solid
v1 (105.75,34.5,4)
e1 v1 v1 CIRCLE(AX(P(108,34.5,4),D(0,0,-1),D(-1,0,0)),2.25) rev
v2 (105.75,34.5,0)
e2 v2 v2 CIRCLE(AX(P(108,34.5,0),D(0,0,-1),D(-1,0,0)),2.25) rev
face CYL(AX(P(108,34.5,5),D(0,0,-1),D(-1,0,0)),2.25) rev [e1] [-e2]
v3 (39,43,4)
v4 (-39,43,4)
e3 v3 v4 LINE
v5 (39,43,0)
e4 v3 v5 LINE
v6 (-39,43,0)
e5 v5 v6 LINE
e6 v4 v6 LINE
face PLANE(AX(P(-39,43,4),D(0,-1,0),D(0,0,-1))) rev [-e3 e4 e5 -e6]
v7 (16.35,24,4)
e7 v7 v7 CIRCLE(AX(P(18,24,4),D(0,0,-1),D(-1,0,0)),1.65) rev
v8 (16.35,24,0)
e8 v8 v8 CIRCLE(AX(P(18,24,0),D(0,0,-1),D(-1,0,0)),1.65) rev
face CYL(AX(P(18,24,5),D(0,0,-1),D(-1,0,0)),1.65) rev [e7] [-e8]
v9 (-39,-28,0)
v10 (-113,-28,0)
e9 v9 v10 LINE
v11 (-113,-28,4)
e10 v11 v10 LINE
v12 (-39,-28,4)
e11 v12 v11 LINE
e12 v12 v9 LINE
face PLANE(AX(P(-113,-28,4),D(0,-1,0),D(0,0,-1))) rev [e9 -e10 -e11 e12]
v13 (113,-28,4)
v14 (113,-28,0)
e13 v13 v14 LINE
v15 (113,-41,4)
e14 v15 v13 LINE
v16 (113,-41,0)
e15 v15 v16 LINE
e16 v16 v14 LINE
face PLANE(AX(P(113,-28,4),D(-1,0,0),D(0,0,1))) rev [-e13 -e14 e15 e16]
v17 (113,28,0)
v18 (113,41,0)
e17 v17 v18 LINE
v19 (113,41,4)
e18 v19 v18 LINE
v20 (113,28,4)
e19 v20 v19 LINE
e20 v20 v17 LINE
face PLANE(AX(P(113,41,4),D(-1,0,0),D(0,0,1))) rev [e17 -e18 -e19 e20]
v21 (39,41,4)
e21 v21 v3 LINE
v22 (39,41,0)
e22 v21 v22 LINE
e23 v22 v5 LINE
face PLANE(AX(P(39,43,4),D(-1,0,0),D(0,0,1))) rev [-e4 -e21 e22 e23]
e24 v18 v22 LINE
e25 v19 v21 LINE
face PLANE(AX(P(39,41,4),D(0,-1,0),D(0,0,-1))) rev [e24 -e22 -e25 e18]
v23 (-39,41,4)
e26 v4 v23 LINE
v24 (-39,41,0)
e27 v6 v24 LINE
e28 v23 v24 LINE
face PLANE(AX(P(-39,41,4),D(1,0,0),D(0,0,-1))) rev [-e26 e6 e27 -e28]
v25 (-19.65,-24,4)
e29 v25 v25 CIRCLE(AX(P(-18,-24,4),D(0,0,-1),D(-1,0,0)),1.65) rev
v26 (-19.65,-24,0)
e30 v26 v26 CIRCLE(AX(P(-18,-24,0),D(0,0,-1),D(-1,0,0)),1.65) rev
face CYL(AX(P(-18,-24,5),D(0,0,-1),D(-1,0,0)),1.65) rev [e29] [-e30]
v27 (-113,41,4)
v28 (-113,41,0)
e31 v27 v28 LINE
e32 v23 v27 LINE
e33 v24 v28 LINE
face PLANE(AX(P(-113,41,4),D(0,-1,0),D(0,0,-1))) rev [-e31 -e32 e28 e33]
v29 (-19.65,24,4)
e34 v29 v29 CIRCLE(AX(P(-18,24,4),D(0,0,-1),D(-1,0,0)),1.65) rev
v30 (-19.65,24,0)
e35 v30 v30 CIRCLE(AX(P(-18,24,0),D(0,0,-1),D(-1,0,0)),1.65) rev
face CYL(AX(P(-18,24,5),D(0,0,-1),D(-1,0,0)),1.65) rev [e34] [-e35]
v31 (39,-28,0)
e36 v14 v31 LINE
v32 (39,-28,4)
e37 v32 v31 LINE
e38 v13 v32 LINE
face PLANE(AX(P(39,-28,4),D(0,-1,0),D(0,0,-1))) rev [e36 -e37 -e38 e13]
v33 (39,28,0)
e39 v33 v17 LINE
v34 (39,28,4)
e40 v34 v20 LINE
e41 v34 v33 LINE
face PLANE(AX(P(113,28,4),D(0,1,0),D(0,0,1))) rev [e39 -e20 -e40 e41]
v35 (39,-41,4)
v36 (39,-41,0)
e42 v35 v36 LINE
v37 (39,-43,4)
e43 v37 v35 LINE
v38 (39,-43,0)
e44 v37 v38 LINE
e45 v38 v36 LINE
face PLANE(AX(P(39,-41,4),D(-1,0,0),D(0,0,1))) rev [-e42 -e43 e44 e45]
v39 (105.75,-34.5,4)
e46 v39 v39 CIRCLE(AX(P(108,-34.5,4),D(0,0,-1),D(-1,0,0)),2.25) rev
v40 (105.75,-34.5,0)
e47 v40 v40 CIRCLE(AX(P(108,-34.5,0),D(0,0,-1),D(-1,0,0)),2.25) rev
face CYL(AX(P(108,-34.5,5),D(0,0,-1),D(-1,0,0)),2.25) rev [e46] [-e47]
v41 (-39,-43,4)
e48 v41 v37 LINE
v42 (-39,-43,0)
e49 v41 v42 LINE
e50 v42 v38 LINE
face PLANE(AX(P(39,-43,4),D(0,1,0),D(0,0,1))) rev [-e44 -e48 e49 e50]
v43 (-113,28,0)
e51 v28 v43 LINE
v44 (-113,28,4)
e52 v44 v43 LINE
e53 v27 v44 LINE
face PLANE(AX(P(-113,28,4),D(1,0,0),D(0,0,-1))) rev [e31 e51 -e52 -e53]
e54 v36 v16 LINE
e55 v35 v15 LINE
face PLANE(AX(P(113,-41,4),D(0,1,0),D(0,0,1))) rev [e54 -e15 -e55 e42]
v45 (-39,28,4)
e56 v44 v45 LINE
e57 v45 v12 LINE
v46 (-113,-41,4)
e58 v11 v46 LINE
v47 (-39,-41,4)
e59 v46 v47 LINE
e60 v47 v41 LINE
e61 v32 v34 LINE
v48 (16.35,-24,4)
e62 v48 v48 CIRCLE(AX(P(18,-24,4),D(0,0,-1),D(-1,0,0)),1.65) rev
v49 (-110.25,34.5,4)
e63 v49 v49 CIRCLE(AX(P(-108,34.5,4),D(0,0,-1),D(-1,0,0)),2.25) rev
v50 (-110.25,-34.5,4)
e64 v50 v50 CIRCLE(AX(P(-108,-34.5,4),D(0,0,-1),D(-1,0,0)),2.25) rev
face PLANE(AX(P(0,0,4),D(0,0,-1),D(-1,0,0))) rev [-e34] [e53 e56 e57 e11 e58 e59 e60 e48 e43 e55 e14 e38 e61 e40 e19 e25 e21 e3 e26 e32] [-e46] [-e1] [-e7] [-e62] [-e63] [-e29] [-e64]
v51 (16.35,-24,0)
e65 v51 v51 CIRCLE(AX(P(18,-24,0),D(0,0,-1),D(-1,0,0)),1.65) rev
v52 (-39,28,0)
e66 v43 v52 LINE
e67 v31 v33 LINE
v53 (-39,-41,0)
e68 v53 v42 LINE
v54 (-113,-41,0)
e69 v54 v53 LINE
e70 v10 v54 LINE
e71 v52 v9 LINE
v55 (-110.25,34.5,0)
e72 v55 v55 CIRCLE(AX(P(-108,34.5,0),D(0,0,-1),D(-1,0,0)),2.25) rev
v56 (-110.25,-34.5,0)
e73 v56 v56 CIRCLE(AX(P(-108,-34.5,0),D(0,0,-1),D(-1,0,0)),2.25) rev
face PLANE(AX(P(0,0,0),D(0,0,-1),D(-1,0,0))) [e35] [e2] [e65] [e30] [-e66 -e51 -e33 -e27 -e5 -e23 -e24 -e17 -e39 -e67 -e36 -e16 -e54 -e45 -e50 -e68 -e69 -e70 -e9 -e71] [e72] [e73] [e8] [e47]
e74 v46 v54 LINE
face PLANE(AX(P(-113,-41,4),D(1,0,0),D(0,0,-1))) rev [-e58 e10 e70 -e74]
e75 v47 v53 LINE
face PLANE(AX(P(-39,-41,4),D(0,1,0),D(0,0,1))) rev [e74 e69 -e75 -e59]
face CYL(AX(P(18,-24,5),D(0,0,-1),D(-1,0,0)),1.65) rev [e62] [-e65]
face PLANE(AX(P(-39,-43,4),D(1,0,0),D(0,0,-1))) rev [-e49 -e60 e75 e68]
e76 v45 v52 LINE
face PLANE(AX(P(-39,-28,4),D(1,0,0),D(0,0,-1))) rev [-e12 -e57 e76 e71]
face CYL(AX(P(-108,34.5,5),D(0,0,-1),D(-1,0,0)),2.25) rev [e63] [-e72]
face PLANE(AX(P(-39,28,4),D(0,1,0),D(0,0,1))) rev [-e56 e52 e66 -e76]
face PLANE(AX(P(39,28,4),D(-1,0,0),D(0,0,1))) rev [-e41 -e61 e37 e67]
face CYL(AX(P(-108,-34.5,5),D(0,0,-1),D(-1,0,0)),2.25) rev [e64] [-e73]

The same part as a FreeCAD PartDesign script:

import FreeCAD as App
import Part
import Sketcher

V = App.Vector
Q = App.Units.Quantity

doc = App.newDocument("Part")
body = doc.addObject("PartDesign::Body", "Body")

# Sketch on XY plane
sketch1 = doc.addObject("Sketcher::SketchObject", "Sketch")
body.addObject(sketch1)
sketch1.AttachmentSupport = (doc.XY_Plane, [""])
sketch1.MapMode = "FlatFace"
sketch1.addGeometry([
    Part.LineSegment(V(113, -41, 0), V(113, -28, 0)),  # 0
    Part.LineSegment(V(113, -28, 0), V(39, -28, 0)),  # 1
    Part.LineSegment(V(39, -28, 0), V(39, 28, 0)),  # 2
    Part.LineSegment(V(39, 28, 0), V(113, 28, 0)),  # 3
    Part.LineSegment(V(113, 28, 0), V(113, 41, 0)),  # 4
    Part.LineSegment(V(113, 41, 0), V(39, 41, 0)),  # 5
    Part.LineSegment(V(39, 41, 0), V(39, 43, 0)),  # 6
    Part.LineSegment(V(39, 43, 0), V(-39, 43, 0)),  # 7
    Part.LineSegment(V(-39, 43, 0), V(-39, 41, 0)),  # 8
    Part.LineSegment(V(-39, 41, 0), V(-113, 41, 0)),  # 9
    Part.LineSegment(V(-113, 41, 0), V(-113, 28, 0)),  # 10
    Part.LineSegment(V(-113, 28, 0), V(-39, 28, 0)),  # 11
    Part.LineSegment(V(-39, 28, 0), V(-39, -28, 0)),  # 12
    Part.LineSegment(V(-39, -28, 0), V(-113, -28, 0)),  # 13
    Part.LineSegment(V(-113, -28, 0), V(-113, -41, 0)),  # 14
    Part.LineSegment(V(-113, -41, 0), V(-39, -41, 0)),  # 15
    Part.LineSegment(V(-39, -41, 0), V(-39, -43, 0)),  # 16
    Part.LineSegment(V(-39, -43, 0), V(39, -43, 0)),  # 17
    Part.LineSegment(V(39, -43, 0), V(39, -41, 0)),  # 18
    Part.LineSegment(V(39, -41, 0), V(113, -41, 0)),  # 19
], False)
sketch1.addConstraint([
    Sketcher.Constraint("Coincident", 0, 2, 1, 1),
    Sketcher.Constraint("Coincident", 1, 2, 2, 1),
    Sketcher.Constraint("Coincident", 2, 2, 3, 1),
    Sketcher.Constraint("Coincident", 3, 2, 4, 1),
    Sketcher.Constraint("Coincident", 4, 2, 5, 1),
    Sketcher.Constraint("Coincident", 5, 2, 6, 1),
    Sketcher.Constraint("Coincident", 6, 2, 7, 1),
    Sketcher.Constraint("Coincident", 7, 2, 8, 1),
    Sketcher.Constraint("Coincident", 8, 2, 9, 1),
    Sketcher.Constraint("Coincident", 9, 2, 10, 1),
    Sketcher.Constraint("Coincident", 10, 2, 11, 1),
    Sketcher.Constraint("Coincident", 11, 2, 12, 1),
    Sketcher.Constraint("Coincident", 12, 2, 13, 1),
    Sketcher.Constraint("Coincident", 13, 2, 14, 1),
    Sketcher.Constraint("Coincident", 14, 2, 15, 1),
    Sketcher.Constraint("Coincident", 15, 2, 16, 1),
    Sketcher.Constraint("Coincident", 16, 2, 17, 1),
    Sketcher.Constraint("Coincident", 17, 2, 18, 1),
    Sketcher.Constraint("Coincident", 18, 2, 19, 1),
    Sketcher.Constraint("Coincident", 19, 2, 0, 1),
    Sketcher.Constraint("Vertical", 0),
    Sketcher.Constraint("Horizontal", 1),
    Sketcher.Constraint("Vertical", 2),
    Sketcher.Constraint("Horizontal", 3),
    Sketcher.Constraint("Vertical", 4),
    Sketcher.Constraint("Horizontal", 5),
    Sketcher.Constraint("Vertical", 6),
    Sketcher.Constraint("Horizontal", 7),
    Sketcher.Constraint("Vertical", 8),
    Sketcher.Constraint("Horizontal", 9),
    Sketcher.Constraint("Vertical", 10),
    Sketcher.Constraint("Horizontal", 11),
    Sketcher.Constraint("Vertical", 12),
    Sketcher.Constraint("Horizontal", 13),
    Sketcher.Constraint("Vertical", 14),
    Sketcher.Constraint("Horizontal", 15),
    Sketcher.Constraint("Vertical", 16),
    Sketcher.Constraint("Horizontal", 17),
    Sketcher.Constraint("Vertical", 18),
    Sketcher.Constraint("Horizontal", 19),
    Sketcher.Constraint("Symmetric", 0, 2, 10, 2, -1, 1),
    Sketcher.Constraint("Symmetric", 2, 2, 12, 2, -1, 1),
    Sketcher.Constraint("Symmetric", 4, 2, 14, 2, -1, 1),
    Sketcher.Constraint("Symmetric", 6, 2, 16, 2, -1, 1),
    Sketcher.Constraint("Symmetric", 8, 2, 18, 2, -1, 1),
    Sketcher.Constraint("Symmetric", 5, 2, 8, 2, -2),
    Sketcher.Constraint("Symmetric", 3, 2, 10, 2, -2),
    Sketcher.Constraint("Vertical", 2, 2, 5, 2),
    Sketcher.Constraint("DistanceX", 1, 2, 1, 1, Q("74 mm")),
    Sketcher.Constraint("DistanceX", 7, 2, 7, 1, Q("78 mm")),
    Sketcher.Constraint("DistanceY", 0, 1, 0, 2, Q("13 mm")),
    Sketcher.Constraint("DistanceY", 2, 1, 2, 2, Q("56 mm")),
    Sketcher.Constraint("DistanceY", 6, 1, 6, 2, Q("2 mm")),
])
pad1 = doc.addObject("PartDesign::Pad", "Pad")
body.addObject(pad1)
pad1.Profile = sketch1
pad1.Length = 4

# Sketch on XY plane
sketch2 = doc.addObject("Sketcher::SketchObject", "Sketch001")
body.addObject(sketch2)
sketch2.AttachmentSupport = (doc.XY_Plane, [""])
sketch2.MapMode = "FlatFace"
sketch2.AttachmentOffset = App.Placement(V(0, 0, -1), App.Rotation())
sketch2.addGeometry([
    Part.Circle(V(-108, -34.5, 0), V(0, 0, 1), 2.2),
    Part.Circle(V(-108, 34.5, 0), V(0, 0, 1), 2.2),
    Part.Circle(V(108, -34.5, 0), V(0, 0, 1), 2.2),
    Part.Circle(V(108, 34.5, 0), V(0, 0, 1), 2.2),
], False)
sketch2.addConstraint([
    Sketcher.Constraint("Equal", 0, 1),
    Sketcher.Constraint("Equal", 1, 2),
    Sketcher.Constraint("Equal", 2, 3),
    Sketcher.Constraint("Symmetric", 1, 3, 2, 3, -1, 1),
    Sketcher.Constraint("Symmetric", 0, 3, 3, 3, -1, 1),
    Sketcher.Constraint("Symmetric", 0, 3, 2, 3, -2),
    Sketcher.Constraint("Diameter", 0, Q("4.5 mm")),
    Sketcher.Constraint("DistanceX", 0, 3, -1, 1, Q("108 mm")),
    Sketcher.Constraint("DistanceY", 0, 3, 1, 3, Q("69 mm")),
])
pocket1 = doc.addObject("PartDesign::Pocket", "Pocket")
body.addObject(pocket1)
pocket1.Profile = sketch2
pocket1.Length = 6
pocket1.Reversed = True

# Sketch on XY plane
sketch3 = doc.addObject("Sketcher::SketchObject", "Sketch002")
body.addObject(sketch3)
sketch3.AttachmentSupport = (doc.XY_Plane, [""])
sketch3.MapMode = "FlatFace"
sketch3.AttachmentOffset = App.Placement(V(0, 0, -1), App.Rotation())
sketch3.addGeometry([
    Part.Circle(V(-18, -24, 0), V(0, 0, 1), 1.6),
    Part.Circle(V(-18, 24, 0), V(0, 0, 1), 1.6),
    Part.Circle(V(18, -24, 0), V(0, 0, 1), 1.6),
    Part.Circle(V(18, 24, 0), V(0, 0, 1), 1.6),
], False)
sketch3.addConstraint([
    Sketcher.Constraint("Equal", 0, 1),
    Sketcher.Constraint("Equal", 1, 2),
    Sketcher.Constraint("Equal", 2, 3),
    Sketcher.Constraint("Symmetric", 1, 3, 2, 3, -1, 1),
    Sketcher.Constraint("Symmetric", 0, 3, 3, 3, -1, 1),
    Sketcher.Constraint("Symmetric", 0, 3, 2, 3, -2),
    Sketcher.Constraint("Diameter", 0, Q("3.3 mm")),
    Sketcher.Constraint("DistanceX", 0, 3, -1, 1, Q("18 mm")),
    Sketcher.Constraint("DistanceY", 0, 3, -1, 1, Q("24 mm")),
])
pocket2 = doc.addObject("PartDesign::Pocket", "Pocket001")
body.addObject(pocket2)
pocket2.Profile = sketch3
pocket2.Length = 6
pocket2.Reversed = True

doc.recompute()
